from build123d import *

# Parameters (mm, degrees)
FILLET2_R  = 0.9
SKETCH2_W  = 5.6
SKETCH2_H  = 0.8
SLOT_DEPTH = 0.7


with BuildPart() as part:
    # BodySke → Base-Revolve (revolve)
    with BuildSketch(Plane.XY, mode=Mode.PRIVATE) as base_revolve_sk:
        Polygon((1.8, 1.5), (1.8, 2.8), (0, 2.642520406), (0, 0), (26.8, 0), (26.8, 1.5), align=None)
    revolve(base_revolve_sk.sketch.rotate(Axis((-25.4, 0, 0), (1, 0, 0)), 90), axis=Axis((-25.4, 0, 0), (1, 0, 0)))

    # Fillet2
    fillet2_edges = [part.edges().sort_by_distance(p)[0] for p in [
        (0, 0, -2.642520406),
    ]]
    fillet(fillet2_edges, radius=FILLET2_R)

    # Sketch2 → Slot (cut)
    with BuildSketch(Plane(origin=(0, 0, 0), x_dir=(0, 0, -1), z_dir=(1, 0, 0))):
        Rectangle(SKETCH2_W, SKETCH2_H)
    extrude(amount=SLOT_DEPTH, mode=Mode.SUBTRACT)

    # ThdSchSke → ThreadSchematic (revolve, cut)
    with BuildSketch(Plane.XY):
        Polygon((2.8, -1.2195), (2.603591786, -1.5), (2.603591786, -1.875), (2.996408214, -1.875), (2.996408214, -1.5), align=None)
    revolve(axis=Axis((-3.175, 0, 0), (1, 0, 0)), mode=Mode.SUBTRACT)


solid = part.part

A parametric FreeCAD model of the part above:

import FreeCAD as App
import Part
import Sketcher

V = App.Vector
Q = App.Units.Quantity


def edges_at(feature, points):
    """Names of the edges that pass closest to the given points."""
    edges = feature.Shape.Edges
    near = lambda p: min(range(len(edges)), key=lambda i: edges[i].distToShape(Part.Vertex(*p))[0])
    return sorted({f"Edge{near(p) + 1}" for p in points})


def add_polygon(sketch, points):
    """Adds a closed chain of lines whose ends are joined by coincident constraints."""
    first, n = sketch.GeometryCount, len(points)
    for a, b in zip(points, points[1:] + points[:1]):
        sketch.addGeometry(Part.LineSegment(App.Vector(*a, 0), App.Vector(*b, 0)), False)
    for i in range(n):
        sketch.addConstraint(Sketcher.Constraint("Coincident", first + i, 2, first + (i + 1) % n, 1))

doc = App.newDocument("Part")
body = doc.addObject("PartDesign::Body", "Body")

# Sketch on XY plane
sketch1 = body.newObject("Sketcher::SketchObject", "Sketch")
sketch1.AttachmentSupport = (doc.getObject("XY_Plane"), [""])
sketch1.MapMode = "FlatFace"
add_polygon(sketch1, [(1.8, 1.5), (1.8, 2.8), (0, 2.6), (0, 0), (26.8, 0), (26.8, 1.5)])  # lines 0-5
sketch1.addConstraint([
    Sketcher.Constraint("Vertical", 0),
    Sketcher.Constraint("Vertical", 2),
    Sketcher.Constraint("Horizontal", 3),
    Sketcher.Constraint("Vertical", 4),
    Sketcher.Constraint("Horizontal", 5),
    Sketcher.Constraint("Coincident", 2, 2, -1, 1),
    Sketcher.Constraint("DistanceX", 5, 2, 5, 1, Q("25 mm")),
    Sketcher.Constraint("Angle", 1, Q("-175 deg")),
    Sketcher.Constraint("DistanceX", 3, 1, 3, 2, Q("26.8 mm")),
    Sketcher.Constraint("DistanceY", 0, 1, 0, 2, Q("1.3 mm")),
    Sketcher.Constraint("DistanceY", 4, 1, 4, 2, Q("1.5 mm")),
])
revolution = body.newObject("PartDesign::Revolution", "Revolution")
revolution.Profile = sketch1
revolution.ReferenceAxis = (sketch1, ["H_Axis"])
revolution.Angle = 360
doc.recompute()

fillet = body.newObject("PartDesign::Fillet", "Fillet")
fillet.Base = (revolution, edges_at(revolution, [(0, 0, -2.643)]))
fillet.Radius = 0.9

# Sketch on YZ plane
sketch2 = body.newObject("Sketcher::SketchObject", "Sketch001")
sketch2.AttachmentSupport = (doc.getObject("YZ_Plane"), [""])
sketch2.MapMode = "FlatFace"
add_polygon(sketch2, [(0.4, 2.8), (-0.4, 2.8), (-0.4, -2.8), (0.4, -2.8)])  # lines 0-3
sketch2.addConstraint([
    Sketcher.Constraint("Horizontal", 0),
    Sketcher.Constraint("Vertical", 1),
    Sketcher.Constraint("Horizontal", 2),
    Sketcher.Constraint("Vertical", 3),
    Sketcher.Constraint("Symmetric", 0, 2, 2, 2, -1, 1),
    Sketcher.Constraint("DistanceX", 0, 2, 0, 1, Q("0.8 mm")),
    Sketcher.Constraint("DistanceY", 1, 2, 1, 1, Q("5.6 mm")),
])
pocket1 = body.newObject("PartDesign::Pocket", "Pocket")
pocket1.Profile = sketch2
pocket1.Length = 0.7
pocket1.Reversed = True

# Sketch on XY plane
sketch3 = body.newObject("Sketcher::SketchObject", "Sketch002")
sketch3.AttachmentSupport = (doc.getObject("XY_Plane"), [""])
sketch3.MapMode = "FlatFace"
add_polygon(sketch3, [(2.8, -1.22), (2.6, -1.5), (2.6, -1.88), (3, -1.88), (3, -1.5)])  # lines 0-4
sketch3.addConstraint([
    Sketcher.Constraint("Vertical", 1),
    Sketcher.Constraint("Horizontal", 2),
    Sketcher.Constraint("Vertical", 3),
    Sketcher.Constraint("Horizontal", 0, 2, 3, 2),
    Sketcher.Constraint("Equal", 0, 4),
    Sketcher.Constraint("Angle", 0, Q("-125 deg")),
    Sketcher.Constraint("DistanceY", 0, 2, -1, 1, Q("1.5 mm")),
    Sketcher.Constraint("DistanceX", -1, 1, 4, 2, Q("2.8 mm")),
    Sketcher.Constraint("DistanceY", 1, 2, 1, 1, Q("0.375 mm")),
    Sketcher.Constraint("DistanceY", 4, 2, -1, 1, Q("1.2195 mm")),
])
groove = body.newObject("PartDesign::Groove", "Groove")
groove.Profile = sketch3
groove.ReferenceAxis = (sketch3, ["H_Axis"])
groove.Angle = 360

doc.recompute()
